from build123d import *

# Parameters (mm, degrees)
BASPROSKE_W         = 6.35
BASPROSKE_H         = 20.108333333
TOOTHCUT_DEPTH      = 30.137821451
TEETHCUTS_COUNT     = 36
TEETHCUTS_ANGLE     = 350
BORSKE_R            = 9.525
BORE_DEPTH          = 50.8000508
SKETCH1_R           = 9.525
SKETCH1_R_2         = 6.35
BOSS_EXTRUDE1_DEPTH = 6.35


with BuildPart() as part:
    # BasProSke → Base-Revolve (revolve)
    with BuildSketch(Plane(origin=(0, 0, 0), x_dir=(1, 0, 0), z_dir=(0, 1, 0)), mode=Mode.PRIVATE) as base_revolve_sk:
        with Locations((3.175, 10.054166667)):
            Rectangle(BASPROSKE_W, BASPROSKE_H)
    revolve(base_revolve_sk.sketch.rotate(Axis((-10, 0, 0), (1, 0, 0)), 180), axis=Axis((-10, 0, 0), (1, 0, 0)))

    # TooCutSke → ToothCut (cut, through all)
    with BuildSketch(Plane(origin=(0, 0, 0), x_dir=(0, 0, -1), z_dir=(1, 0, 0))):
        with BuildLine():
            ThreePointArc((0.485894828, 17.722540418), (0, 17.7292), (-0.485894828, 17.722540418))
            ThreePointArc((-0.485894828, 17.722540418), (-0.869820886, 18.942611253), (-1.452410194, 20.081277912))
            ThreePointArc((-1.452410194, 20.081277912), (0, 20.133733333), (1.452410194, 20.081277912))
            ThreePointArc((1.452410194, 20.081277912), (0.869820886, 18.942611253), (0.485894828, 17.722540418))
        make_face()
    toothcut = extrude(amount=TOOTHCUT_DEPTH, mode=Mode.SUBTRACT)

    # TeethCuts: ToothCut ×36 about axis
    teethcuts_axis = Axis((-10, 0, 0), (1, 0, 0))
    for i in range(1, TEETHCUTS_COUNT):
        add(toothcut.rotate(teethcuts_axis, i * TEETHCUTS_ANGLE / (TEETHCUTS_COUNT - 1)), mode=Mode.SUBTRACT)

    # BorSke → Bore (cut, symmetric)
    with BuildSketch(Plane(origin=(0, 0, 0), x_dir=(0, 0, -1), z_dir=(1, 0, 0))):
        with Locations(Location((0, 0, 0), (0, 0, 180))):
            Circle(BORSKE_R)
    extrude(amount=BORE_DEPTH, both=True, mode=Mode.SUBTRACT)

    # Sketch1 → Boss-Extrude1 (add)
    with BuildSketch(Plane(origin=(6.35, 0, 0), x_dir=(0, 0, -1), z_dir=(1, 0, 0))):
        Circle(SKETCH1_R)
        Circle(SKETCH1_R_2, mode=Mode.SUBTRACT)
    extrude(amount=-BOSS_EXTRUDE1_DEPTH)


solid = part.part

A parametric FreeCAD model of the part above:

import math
import FreeCAD as App
import Part
import Sketcher
from FreeCAD import Vector
Q = App.Units.Quantity


def add_polygon(sketch, points):
    """Adds a closed chain of lines whose ends are joined by coincident constraints."""
    first, n = sketch.GeometryCount, len(points)
    for a, b in zip(points, points[1:] + points[:1]):
        sketch.addGeometry(Part.LineSegment(App.Vector(*a, 0), App.Vector(*b, 0)), False)
    for i in range(n):
        sketch.addConstraint(Sketcher.Constraint("Coincident", first + i, 2, first + (i + 1) % n, 1))

doc = App.newDocument("Part")
params = doc.addObject("Spreadsheet::Sheet", "Params")
for row, (alias, value) in enumerate([
    ("sketch1_width", "0.25 in"),
    ("revolution_angle", "360 deg"),
    ("sketch2_radius", "0.3 in"),
    ("sketch2_radius2", "0.698 in"),
    ("sketch3_diameter", "0.75 in"),
    ("pocket2_length", "101.600102 mm"),
    ("sketch4_diameter", "0.5 in"),
    ("sketch4_diameter2", "0.75 in"),
    ("pad1_length", "0.25 in"),
], start=1):
    params.set(f"A{row}", alias)
    params.set(f"B{row}", "=" + value)
    params.setAlias(f"B{row}", alias)

body = doc.addObject("PartDesign::Body", "Body")

sketch1 = body.newObject("Sketcher::SketchObject", "Sketch")
sketch1.AttachmentSupport = (doc.getObject("XZ_Plane"), [""])
sketch1.MapMode = "FlatFace"
add_polygon(sketch1, [(0, -20.108333), (0, 0), (6.35, 0), (6.35, -20.108333)])
sketch1.addConstraint([
    Sketcher.Constraint("Vertical", 0),
    Sketcher.Constraint("Horizontal", 1),
    Sketcher.Constraint("Vertical", 2),
    Sketcher.Constraint("Horizontal", 3),
    Sketcher.Constraint("Coincident", 0, 2, -1, 1),
    Sketcher.Constraint("DistanceX", 1, 1, 1, 2, Q("0.25 in")),
    Sketcher.Constraint("DistanceY", 0, 1, 0, 2, Q("20.108333 mm")),
])
sketch1.setExpression("Constraints[9]", "Params.sketch1_width")
revolution = body.newObject("PartDesign::Revolution", "Revolution")
revolution.Profile = sketch1
revolution.ReferenceAxis = (sketch1, ["H_Axis"])
revolution.setExpression("Angle", "Params.revolution_angle")

sketch2 = body.newObject("Sketcher::SketchObject", "Sketch001")
sketch2.AttachmentSupport = (doc.getObject("YZ_Plane"), [""])
sketch2.MapMode = "FlatFace"
sketch2.addGeometry([
    Part.ArcOfCircle(Part.Circle(Vector(-0.000001, 0, 0), Vector(0, 0, 1), 17.729201), math.radians(-1.570472), math.radians(1.570472)),
    Part.ArcOfCircle(Part.Circle(Vector(16.05339, -7.920835, 0), Vector(0, 0, 1), 7.62), math.radians(58.089482), math.radians(77.346843)),
    Part.ArcOfCircle(Part.Circle(Vector(0, 0, 0), Vector(0, 0, 1), 20.133734), math.radians(-4.136804), math.radians(4.136804)),
    Part.ArcOfCircle(Part.Circle(Vector(16.05339, 7.920835, 0), Vector(0, 0, 1), 7.62), math.radians(-77.346843), math.radians(-58.089482)),
], False)
sketch2.addConstraint([
    Sketcher.Constraint("Coincident", 0, 1, 1, 2),
    Sketcher.Constraint("Coincident", 1, 1, 2, 1),
    Sketcher.Constraint("Coincident", 2, 2, 3, 2),
    Sketcher.Constraint("Coincident", 3, 1, 0, 2),
    Sketcher.Constraint("Coincident", 0, 3, -1, 1),
    Sketcher.Constraint("Coincident", 2, 3, -1, 1),
    Sketcher.Constraint("Equal", 1, 3),
    Sketcher.Constraint("Symmetric", 1, 3, 3, 3, -1),
    Sketcher.Constraint("Radius", 1, Q("0.3 in")),
    Sketcher.Constraint("Radius", 0, Q("0.698 in")),
    Sketcher.Constraint("Radius", 2, Q("20.133734 mm")),
    Sketcher.Constraint("DistanceX", -1, 1, 1, 3, Q("16.05339 mm")),
    Sketcher.Constraint("DistanceX", -1, 1, 0, 1, Q("17.72254 mm")),
])
sketch2.setExpression("Constraints[8]", "Params.sketch2_radius")
sketch2.setExpression("Constraints[9]", "Params.sketch2_radius2")
pocket1 = body.newObject("PartDesign::Pocket", "Pocket")
pocket1.Profile = sketch2
pocket1.Type = "ThroughAll"
pocket1.Reversed = True
doc.recompute()

polarpattern = body.newObject("PartDesign::PolarPattern", "PolarPattern")
polarpattern.Originals = [pocket1]
polarpattern.Axis = (doc.getObject("X_Axis"), [""])
polarpattern.Angle = 360
polarpattern.Occurrences = 36
body.Tip = polarpattern

sketch3 = body.newObject("Sketcher::SketchObject", "Sketch002")
sketch3.AttachmentSupport = (doc.getObject("YZ_Plane"), [""])
sketch3.MapMode = "FlatFace"
sketch3.addGeometry(Part.Circle(Vector(0, 0, 0), Vector(0, 0, 1), 9.525), False)
sketch3.addConstraint([
    Sketcher.Constraint("Coincident", 0, 3, -1, 1),
    Sketcher.Constraint("Diameter", 0, Q("0.75 in")),
])
sketch3.setExpression("Constraints[1]", "Params.sketch3_diameter")
pocket2 = body.newObject("PartDesign::Pocket", "Pocket001")
pocket2.Profile = sketch3
pocket2.setExpression("Length", "Params.pocket2_length")
pocket2.Midplane = True

sketch4 = body.newObject("Sketcher::SketchObject", "Sketch003")
sketch4.AttachmentSupport = (doc.getObject("YZ_Plane"), [""])
sketch4.MapMode = "FlatFace"
sketch4.AttachmentOffset = App.Placement(Vector(0, 0, 0.25 * 25.4), App.Rotation())
sketch4.addGeometry([
    Part.Circle(Vector(0, 0, 0), Vector(0, 0, 1), 9.525),
    Part.Circle(Vector(0, 0, 0), Vector(0, 0, 1), 6.35),
], False)
sketch4.addConstraint([
    Sketcher.Constraint("Coincident", 0, 3, -1, 1),
    Sketcher.Constraint("Coincident", 1, 3, -1, 1),
    Sketcher.Constraint("Diameter", 1, Q("0.5 in")),
    Sketcher.Constraint("Diameter", 0, Q("0.75 in")),
])
sketch4.setExpression("Constraints[2]", "Params.sketch4_diameter")
sketch4.setExpression("Constraints[3]", "Params.sketch4_diameter2")
pad1 = body.newObject("PartDesign::Pad", "Pad")
pad1.Profile = sketch4
pad1.setExpression("Length", "Params.pad1_length")
pad1.Reversed = True

doc.recompute()
